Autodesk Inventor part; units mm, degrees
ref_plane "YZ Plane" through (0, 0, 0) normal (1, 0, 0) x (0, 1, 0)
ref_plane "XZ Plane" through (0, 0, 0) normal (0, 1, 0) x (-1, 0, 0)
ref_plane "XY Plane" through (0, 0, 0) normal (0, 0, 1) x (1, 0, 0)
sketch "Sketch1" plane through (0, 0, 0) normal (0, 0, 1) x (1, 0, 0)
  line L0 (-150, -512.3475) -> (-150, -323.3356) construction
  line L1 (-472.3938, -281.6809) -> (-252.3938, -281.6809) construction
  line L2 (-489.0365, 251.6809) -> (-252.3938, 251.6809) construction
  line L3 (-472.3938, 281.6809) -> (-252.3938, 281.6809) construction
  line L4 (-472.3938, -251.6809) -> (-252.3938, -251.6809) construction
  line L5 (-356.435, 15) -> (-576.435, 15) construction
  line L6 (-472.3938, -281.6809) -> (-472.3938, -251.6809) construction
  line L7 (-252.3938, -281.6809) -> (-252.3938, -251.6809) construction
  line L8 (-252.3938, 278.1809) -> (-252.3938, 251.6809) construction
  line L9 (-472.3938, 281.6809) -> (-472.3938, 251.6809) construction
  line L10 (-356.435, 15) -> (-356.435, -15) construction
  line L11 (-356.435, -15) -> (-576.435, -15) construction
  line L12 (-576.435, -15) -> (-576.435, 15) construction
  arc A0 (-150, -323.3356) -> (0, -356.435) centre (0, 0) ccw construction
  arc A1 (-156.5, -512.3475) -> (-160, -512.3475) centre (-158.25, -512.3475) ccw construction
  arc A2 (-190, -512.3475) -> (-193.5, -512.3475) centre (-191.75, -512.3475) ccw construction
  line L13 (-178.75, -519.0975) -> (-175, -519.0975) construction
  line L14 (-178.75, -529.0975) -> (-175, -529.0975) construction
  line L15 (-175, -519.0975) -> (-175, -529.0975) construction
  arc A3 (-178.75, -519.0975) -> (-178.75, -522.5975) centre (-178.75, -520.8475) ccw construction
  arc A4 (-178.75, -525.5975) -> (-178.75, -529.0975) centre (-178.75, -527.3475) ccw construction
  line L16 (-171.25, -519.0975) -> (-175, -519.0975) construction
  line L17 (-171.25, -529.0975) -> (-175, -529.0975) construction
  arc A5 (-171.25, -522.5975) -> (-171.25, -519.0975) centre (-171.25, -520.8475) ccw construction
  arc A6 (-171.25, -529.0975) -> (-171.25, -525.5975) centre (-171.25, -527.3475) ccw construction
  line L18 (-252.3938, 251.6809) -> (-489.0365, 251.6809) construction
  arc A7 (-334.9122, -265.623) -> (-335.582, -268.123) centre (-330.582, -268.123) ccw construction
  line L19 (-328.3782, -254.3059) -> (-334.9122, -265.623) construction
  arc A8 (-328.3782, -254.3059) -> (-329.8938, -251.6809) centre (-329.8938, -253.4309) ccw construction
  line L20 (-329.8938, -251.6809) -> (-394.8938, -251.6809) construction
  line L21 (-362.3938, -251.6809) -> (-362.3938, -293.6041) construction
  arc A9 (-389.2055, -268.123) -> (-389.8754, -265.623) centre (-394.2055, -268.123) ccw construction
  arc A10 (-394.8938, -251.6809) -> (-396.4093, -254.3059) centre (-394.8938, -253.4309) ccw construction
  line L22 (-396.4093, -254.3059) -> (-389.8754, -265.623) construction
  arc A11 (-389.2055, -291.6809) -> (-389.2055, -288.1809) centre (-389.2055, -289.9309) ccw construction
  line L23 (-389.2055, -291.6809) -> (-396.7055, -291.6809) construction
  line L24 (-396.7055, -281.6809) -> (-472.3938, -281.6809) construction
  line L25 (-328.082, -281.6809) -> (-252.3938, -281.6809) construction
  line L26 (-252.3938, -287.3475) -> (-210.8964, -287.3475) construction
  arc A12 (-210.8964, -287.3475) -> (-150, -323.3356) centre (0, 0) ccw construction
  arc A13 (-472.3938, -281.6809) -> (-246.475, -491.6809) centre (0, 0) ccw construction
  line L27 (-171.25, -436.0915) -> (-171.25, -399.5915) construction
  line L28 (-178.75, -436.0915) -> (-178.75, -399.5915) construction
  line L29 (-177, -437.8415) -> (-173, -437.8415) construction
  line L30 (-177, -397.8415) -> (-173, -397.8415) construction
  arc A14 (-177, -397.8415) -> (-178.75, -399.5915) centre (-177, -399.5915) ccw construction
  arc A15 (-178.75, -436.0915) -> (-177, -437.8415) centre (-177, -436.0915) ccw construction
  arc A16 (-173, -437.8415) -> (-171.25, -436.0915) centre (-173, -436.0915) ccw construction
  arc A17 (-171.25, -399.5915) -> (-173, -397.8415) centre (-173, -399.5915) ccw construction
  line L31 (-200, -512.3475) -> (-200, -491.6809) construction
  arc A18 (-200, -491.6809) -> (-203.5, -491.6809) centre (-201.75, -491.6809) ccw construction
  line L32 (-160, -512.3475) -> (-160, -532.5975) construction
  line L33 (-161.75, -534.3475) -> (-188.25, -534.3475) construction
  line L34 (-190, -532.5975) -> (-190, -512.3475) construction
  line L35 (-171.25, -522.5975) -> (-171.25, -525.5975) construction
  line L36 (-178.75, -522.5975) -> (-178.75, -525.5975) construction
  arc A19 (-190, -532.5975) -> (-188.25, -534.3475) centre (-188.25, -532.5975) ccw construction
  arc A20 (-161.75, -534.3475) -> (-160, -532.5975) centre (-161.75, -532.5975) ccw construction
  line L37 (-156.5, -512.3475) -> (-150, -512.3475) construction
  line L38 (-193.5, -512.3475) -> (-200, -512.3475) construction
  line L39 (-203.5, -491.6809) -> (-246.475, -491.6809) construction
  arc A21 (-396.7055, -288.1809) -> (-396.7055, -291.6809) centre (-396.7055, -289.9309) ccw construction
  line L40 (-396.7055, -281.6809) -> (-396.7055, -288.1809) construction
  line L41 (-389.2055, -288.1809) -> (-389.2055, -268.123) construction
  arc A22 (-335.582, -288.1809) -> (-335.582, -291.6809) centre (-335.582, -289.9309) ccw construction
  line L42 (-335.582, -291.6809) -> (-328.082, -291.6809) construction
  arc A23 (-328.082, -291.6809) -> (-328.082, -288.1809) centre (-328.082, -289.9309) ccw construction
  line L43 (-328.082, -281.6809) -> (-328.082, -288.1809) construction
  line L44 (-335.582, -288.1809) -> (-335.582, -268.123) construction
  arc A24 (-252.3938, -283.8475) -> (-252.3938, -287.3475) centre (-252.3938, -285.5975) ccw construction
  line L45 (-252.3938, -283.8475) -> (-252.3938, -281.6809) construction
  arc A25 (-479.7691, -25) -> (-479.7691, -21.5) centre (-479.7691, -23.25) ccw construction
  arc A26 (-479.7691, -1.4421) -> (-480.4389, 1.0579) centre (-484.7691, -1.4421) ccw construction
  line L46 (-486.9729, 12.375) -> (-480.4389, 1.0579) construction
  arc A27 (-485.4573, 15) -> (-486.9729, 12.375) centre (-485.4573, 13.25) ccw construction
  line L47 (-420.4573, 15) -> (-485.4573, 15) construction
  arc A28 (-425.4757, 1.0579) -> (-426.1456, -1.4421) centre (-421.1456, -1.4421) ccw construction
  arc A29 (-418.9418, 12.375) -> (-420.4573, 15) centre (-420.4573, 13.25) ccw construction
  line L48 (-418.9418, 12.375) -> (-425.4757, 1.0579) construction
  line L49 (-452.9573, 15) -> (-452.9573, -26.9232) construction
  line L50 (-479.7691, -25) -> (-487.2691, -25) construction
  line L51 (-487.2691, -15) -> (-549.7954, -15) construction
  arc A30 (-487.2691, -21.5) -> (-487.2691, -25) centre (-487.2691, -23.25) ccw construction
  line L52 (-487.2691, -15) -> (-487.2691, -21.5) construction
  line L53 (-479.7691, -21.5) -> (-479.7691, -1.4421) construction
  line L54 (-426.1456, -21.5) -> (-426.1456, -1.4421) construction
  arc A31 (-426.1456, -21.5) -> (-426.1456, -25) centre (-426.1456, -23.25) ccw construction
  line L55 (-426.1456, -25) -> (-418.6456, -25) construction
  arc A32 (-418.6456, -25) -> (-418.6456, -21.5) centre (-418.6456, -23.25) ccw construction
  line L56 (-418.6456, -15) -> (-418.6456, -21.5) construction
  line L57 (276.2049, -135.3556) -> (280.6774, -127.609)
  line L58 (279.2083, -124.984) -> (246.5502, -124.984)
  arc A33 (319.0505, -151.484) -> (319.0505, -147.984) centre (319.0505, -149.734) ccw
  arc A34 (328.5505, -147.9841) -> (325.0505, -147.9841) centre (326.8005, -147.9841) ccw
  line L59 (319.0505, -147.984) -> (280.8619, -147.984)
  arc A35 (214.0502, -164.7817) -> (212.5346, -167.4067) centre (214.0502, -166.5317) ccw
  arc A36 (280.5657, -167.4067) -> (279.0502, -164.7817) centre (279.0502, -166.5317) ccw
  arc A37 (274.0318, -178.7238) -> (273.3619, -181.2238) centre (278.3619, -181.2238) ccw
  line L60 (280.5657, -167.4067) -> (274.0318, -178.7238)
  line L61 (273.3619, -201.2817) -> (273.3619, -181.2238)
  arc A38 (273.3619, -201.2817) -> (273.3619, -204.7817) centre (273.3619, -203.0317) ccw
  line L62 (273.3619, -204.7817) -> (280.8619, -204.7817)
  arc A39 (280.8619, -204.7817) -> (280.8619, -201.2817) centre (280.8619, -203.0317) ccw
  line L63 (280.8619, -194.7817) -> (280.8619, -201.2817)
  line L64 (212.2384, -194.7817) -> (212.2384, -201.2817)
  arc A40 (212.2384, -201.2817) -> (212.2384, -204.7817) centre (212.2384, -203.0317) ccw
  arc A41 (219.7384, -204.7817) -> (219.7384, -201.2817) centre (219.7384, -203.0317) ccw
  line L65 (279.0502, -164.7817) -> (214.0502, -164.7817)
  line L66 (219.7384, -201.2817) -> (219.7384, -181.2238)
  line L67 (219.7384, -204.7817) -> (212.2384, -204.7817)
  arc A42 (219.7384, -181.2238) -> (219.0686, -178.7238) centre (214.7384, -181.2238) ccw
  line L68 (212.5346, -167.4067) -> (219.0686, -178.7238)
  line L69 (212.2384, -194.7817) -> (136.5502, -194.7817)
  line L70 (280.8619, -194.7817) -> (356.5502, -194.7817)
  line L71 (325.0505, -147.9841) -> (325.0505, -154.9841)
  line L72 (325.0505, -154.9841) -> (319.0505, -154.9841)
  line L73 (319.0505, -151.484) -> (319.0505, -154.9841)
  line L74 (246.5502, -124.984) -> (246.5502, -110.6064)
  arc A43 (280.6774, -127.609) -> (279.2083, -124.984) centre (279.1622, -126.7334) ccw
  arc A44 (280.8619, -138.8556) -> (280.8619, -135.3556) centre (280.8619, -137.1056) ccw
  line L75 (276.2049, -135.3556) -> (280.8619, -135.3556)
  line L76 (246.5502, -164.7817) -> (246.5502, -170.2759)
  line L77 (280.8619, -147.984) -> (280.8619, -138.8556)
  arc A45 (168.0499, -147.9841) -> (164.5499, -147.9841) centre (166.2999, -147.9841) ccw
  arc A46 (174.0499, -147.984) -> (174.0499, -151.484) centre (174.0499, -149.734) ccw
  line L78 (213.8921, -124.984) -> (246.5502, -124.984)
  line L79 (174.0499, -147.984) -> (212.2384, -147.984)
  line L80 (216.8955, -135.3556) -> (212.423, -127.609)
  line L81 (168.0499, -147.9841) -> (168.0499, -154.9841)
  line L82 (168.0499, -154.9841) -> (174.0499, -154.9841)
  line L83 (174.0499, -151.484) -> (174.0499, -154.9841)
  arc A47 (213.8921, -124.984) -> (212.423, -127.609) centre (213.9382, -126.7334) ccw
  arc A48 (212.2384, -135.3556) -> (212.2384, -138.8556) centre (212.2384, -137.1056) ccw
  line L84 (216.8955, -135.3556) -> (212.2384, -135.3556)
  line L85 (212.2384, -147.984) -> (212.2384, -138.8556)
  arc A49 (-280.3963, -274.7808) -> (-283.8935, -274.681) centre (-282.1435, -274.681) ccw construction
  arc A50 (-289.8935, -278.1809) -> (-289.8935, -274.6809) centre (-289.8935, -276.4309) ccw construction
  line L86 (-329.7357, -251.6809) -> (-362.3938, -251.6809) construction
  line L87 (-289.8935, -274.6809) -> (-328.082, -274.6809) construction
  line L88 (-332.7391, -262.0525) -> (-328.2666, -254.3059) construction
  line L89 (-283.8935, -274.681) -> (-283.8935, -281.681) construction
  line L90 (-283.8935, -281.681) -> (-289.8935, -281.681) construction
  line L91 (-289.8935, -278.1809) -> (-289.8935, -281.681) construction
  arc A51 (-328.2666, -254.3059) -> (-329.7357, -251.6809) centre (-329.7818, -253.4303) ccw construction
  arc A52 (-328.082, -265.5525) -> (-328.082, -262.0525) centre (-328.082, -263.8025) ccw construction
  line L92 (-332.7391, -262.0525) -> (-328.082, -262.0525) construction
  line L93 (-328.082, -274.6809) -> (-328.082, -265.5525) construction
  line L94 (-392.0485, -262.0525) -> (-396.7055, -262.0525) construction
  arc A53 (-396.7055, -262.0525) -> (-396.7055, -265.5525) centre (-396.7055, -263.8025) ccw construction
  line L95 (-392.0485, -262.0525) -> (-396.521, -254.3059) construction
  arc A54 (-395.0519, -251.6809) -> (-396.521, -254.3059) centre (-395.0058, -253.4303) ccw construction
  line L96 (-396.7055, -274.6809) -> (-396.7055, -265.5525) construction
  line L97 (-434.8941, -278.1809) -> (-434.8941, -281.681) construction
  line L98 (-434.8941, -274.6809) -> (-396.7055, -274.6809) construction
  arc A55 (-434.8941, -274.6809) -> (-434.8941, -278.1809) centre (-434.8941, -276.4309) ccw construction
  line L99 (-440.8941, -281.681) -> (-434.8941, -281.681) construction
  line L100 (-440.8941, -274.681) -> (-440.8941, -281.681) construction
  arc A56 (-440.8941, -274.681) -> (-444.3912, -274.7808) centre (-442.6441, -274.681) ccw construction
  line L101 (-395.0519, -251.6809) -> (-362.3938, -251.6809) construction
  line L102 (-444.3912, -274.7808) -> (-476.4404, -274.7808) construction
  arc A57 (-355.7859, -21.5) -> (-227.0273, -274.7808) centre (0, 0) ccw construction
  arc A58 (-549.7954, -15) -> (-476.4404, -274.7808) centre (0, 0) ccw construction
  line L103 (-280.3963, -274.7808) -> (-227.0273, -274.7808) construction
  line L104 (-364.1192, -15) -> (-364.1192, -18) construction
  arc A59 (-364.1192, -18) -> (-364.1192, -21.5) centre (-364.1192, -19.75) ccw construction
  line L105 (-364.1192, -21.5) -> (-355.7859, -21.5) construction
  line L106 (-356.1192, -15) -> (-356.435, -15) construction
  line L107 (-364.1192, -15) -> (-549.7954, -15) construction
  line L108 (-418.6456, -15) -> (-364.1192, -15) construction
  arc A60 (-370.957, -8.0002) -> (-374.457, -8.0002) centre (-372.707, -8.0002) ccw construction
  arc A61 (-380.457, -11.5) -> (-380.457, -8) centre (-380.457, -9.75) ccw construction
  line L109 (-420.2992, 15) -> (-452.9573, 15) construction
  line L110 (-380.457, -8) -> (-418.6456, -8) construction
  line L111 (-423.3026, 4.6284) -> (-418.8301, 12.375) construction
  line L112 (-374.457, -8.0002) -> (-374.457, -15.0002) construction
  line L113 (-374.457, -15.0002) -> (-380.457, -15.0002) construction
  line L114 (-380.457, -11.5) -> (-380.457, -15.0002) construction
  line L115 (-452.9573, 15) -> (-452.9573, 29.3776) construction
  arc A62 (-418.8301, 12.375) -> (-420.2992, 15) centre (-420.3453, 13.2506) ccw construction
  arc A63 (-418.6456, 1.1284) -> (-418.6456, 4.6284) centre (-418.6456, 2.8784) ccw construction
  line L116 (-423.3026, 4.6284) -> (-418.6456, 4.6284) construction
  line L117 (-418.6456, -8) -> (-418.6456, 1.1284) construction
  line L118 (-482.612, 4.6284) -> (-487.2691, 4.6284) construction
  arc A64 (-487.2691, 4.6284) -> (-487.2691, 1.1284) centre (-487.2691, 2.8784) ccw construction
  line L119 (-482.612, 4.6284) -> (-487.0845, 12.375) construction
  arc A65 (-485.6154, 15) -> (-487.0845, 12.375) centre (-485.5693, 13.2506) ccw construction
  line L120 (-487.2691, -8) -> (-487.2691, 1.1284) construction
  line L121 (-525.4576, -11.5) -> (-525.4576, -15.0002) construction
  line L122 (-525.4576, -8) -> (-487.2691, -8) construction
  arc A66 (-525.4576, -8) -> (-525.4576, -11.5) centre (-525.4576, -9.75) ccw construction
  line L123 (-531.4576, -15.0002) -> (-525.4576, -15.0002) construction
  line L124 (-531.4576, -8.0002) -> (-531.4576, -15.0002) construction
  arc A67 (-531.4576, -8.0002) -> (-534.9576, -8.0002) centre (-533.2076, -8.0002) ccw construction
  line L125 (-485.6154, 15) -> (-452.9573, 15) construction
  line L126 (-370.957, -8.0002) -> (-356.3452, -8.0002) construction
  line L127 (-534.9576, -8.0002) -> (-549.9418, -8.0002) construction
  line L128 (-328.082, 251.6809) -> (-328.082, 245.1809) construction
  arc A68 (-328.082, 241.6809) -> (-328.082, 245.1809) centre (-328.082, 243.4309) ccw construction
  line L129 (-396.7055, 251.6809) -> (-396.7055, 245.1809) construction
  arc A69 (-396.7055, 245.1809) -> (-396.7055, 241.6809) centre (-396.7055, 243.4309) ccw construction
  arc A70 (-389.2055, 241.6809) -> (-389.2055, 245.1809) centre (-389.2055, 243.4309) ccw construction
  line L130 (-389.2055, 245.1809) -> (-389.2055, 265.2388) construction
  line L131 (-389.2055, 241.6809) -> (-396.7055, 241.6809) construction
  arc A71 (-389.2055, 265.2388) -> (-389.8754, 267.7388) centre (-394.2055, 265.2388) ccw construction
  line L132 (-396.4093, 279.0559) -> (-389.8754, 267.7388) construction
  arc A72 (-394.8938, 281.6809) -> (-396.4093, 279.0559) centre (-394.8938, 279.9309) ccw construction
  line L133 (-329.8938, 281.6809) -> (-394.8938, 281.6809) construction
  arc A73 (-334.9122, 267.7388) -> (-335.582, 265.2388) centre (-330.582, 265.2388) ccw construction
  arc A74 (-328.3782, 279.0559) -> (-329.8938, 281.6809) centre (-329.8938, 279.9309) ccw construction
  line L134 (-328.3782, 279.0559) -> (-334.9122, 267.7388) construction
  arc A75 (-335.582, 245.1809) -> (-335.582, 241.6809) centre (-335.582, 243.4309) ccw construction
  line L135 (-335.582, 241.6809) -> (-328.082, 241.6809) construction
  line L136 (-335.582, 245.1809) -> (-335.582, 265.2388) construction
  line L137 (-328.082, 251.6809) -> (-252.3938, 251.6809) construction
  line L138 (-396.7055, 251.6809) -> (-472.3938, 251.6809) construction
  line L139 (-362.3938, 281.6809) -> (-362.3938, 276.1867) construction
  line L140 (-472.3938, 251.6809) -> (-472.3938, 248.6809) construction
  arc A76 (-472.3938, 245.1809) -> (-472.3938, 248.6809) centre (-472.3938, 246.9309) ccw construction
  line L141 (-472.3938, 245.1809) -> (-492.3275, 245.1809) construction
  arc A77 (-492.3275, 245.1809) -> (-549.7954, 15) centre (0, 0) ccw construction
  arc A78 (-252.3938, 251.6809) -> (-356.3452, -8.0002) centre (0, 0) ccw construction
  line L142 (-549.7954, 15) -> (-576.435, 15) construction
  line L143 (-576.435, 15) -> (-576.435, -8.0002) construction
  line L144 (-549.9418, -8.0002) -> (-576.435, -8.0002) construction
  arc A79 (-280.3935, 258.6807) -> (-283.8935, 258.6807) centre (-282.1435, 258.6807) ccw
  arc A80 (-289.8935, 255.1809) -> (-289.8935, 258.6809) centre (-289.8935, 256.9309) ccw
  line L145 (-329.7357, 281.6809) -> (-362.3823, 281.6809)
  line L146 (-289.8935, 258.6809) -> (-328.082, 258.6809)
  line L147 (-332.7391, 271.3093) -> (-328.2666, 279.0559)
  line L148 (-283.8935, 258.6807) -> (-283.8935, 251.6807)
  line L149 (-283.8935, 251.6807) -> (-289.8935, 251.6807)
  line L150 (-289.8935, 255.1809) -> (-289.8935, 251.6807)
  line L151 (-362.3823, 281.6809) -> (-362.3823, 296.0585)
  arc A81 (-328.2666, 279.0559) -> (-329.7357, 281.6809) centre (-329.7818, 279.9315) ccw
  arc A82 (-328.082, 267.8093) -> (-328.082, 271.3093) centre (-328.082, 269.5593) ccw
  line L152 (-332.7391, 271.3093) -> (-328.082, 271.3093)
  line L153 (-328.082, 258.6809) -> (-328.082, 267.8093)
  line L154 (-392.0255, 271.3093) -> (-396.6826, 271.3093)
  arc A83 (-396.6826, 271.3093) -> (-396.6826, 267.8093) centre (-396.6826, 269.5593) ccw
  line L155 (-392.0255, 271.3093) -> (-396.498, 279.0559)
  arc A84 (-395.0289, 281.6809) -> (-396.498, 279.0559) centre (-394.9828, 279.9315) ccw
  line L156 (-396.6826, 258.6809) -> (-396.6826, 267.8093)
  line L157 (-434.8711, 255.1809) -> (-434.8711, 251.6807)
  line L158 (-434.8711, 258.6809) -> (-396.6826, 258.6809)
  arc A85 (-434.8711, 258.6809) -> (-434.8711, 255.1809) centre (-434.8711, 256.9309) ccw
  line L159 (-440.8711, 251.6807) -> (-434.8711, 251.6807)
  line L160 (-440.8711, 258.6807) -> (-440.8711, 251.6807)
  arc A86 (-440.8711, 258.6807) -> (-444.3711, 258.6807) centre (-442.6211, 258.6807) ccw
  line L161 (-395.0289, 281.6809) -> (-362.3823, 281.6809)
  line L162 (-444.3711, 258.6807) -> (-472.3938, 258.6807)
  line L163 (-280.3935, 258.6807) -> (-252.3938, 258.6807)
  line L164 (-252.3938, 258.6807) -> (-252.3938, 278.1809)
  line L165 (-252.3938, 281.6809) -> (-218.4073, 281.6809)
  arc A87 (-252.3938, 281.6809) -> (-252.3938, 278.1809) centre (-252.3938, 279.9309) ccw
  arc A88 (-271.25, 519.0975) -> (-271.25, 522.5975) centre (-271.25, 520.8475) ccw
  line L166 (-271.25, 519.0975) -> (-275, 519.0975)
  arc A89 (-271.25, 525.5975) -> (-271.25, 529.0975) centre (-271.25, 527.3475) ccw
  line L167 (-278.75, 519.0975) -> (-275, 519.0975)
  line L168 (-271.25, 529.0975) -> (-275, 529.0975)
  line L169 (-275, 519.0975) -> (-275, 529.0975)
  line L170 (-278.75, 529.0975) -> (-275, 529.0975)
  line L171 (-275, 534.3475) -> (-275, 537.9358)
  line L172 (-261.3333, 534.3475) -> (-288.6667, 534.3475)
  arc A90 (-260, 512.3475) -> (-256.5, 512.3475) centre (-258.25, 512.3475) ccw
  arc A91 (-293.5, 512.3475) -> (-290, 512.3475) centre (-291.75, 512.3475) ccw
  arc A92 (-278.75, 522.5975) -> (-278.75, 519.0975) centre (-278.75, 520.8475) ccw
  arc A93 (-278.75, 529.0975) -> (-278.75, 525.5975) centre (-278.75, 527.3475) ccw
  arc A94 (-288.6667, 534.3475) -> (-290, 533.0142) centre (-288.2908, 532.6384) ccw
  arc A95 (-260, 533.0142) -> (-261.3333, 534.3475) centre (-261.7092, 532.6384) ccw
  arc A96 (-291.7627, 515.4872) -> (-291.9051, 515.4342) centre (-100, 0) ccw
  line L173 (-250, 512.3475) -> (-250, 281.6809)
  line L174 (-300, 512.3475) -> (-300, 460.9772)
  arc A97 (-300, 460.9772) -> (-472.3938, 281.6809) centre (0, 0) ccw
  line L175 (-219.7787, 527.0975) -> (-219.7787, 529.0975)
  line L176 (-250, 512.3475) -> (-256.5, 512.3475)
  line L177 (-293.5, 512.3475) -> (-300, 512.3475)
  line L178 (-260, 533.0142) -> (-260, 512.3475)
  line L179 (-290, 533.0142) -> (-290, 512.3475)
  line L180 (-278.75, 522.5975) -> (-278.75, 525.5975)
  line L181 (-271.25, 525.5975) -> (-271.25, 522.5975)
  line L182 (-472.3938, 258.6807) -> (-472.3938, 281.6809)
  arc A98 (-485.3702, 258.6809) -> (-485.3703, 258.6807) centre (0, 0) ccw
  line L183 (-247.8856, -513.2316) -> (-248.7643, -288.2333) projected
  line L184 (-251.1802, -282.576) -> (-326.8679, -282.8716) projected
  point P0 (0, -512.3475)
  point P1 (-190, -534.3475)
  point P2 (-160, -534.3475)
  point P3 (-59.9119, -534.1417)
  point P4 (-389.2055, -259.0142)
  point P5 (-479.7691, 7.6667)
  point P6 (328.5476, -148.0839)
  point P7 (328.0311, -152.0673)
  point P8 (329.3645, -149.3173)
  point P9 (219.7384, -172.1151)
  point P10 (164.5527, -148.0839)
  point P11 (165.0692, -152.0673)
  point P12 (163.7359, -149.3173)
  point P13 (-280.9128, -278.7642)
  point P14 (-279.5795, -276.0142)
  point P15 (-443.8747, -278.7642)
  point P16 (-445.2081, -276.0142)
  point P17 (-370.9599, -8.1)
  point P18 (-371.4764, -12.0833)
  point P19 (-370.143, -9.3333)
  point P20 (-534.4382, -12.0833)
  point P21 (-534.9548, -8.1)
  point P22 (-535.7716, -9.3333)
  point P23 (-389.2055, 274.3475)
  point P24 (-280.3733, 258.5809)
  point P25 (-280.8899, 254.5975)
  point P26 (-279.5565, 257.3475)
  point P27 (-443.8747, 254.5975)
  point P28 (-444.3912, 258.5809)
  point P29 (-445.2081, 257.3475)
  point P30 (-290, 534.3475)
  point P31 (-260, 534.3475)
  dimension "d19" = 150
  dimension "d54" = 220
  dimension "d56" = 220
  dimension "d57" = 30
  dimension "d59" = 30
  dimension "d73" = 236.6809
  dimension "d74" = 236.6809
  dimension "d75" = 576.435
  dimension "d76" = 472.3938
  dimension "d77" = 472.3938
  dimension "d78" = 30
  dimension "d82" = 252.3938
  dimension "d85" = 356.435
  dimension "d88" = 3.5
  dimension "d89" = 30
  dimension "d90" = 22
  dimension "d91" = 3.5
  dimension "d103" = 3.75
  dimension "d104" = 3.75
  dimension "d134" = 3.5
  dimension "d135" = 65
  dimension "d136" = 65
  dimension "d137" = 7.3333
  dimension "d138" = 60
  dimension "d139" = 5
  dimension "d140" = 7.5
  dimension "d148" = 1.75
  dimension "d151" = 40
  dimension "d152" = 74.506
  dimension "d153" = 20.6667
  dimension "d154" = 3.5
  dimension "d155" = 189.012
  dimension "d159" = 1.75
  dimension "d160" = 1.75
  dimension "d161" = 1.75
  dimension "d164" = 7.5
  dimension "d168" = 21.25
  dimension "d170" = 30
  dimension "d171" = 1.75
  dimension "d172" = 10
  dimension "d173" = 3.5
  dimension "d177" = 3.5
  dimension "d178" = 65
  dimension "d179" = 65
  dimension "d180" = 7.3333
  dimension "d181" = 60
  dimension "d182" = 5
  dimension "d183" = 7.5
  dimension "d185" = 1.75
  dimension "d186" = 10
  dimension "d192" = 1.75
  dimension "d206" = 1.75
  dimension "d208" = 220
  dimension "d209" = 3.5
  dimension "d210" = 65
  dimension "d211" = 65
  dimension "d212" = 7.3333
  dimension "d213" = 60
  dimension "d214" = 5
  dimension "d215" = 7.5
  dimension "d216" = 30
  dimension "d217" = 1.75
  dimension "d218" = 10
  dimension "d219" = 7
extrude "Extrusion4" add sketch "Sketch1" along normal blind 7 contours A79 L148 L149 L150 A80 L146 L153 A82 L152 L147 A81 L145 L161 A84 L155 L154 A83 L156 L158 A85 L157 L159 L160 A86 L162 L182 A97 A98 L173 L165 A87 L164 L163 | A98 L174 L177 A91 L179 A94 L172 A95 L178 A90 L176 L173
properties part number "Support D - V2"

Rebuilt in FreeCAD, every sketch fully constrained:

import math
import FreeCAD as App
import Part
import Sketcher

V = App.Vector
Q = App.Units.Quantity

doc = App.newDocument("Part")
body = doc.addObject("PartDesign::Body", "Body")

sketch1 = doc.addObject("Sketcher::SketchObject", "Sketch")
body.addObject(sketch1)
sketch1.AttachmentSupport = (doc.XY_Plane, [""])
sketch1.MapMode = "FlatFace"
sketch1.addGeometry(Part.ArcOfCircle(Part.Circle(V(-282.1, 258.7, 0), V(0, 0, 1), 1.8), math.radians(0), math.radians(180)), False)
sketch1.addGeometry(Part.LineSegment(V(-280.4, 258.7, 0), V(-252.4, 258.7, 0)), False)
sketch1.addGeometry(Part.LineSegment(V(-252.4, 258.7, 0), V(-252.4, 278.2, 0)), False)
sketch1.addGeometry(Part.ArcOfCircle(Part.Circle(V(-252.4, 279.9, 0), V(0, 0, 1), 1.8), math.radians(90), math.radians(270)), False)
sketch1.addGeometry(Part.LineSegment(V(-252.4, 281.7, 0), V(-250, 281.7, 0)), False)
sketch1.addGeometry(Part.LineSegment(V(-250, 281.7, 0), V(-250, 512.3, 0)), False)
sketch1.addGeometry(Part.LineSegment(V(-250, 512.3, 0), V(-256.5, 512.3, 0)), False)
sketch1.addGeometry(Part.ArcOfCircle(Part.Circle(V(-258.2, 512.3, 0), V(0, 0, 1), 1.8), math.radians(180), math.radians(360)), False)
sketch1.addGeometry(Part.LineSegment(V(-260, 512.3, 0), V(-260, 533, 0)), False)
sketch1.addGeometry(Part.ArcOfCircle(Part.Circle(V(-261.7, 532.6, 0), V(0, 0, 1), 1.8), math.radians(12), math.radians(78)), False)
sketch1.addGeometry(Part.LineSegment(V(-261.3, 534.3, 0), V(-288.7, 534.3, 0)), False)
sketch1.addGeometry(Part.ArcOfCircle(Part.Circle(V(-288.3, 532.6, 0), V(0, 0, 1), 1.7), math.radians(102), math.radians(168)), False)
sketch1.addGeometry(Part.LineSegment(V(-290, 533, 0), V(-290, 512.3, 0)), False)
sketch1.addGeometry(Part.ArcOfCircle(Part.Circle(V(-291.8, 512.3, 0), V(0, 0, 1), 1.8), math.radians(180), math.radians(360)), False)
sketch1.addGeometry(Part.LineSegment(V(-293.5, 512.3, 0), V(-300, 512.3, 0)), False)
sketch1.addGeometry(Part.LineSegment(V(-300, 512.3, 0), V(-300, 461, 0)), False)
sketch1.addGeometry(Part.ArcOfCircle(Part.Circle(V(0, 0, 0), V(0, 0, 1), 550), math.radians(123), math.radians(149)), False)
sketch1.addGeometry(Part.LineSegment(V(-472.4, 281.7, 0), V(-472.4, 258.7, 0)), False)
sketch1.addGeometry(Part.LineSegment(V(-472.4, 258.7, 0), V(-444.4, 258.7, 0)), False)
sketch1.addGeometry(Part.ArcOfCircle(Part.Circle(V(-442.6, 258.7, 0), V(0, 0, 1), 1.8), math.radians(0), math.radians(180)), False)
sketch1.addGeometry(Part.LineSegment(V(-440.9, 258.7, 0), V(-440.9, 251.7, 0)), False)
sketch1.addGeometry(Part.LineSegment(V(-440.9, 251.7, 0), V(-434.9, 251.7, 0)), False)
sketch1.addGeometry(Part.LineSegment(V(-434.9, 251.7, 0), V(-434.9, 255.2, 0)), False)
sketch1.addGeometry(Part.ArcOfCircle(Part.Circle(V(-434.9, 256.9, 0), V(0, 0, 1), 1.8), math.radians(90), math.radians(270)), False)
sketch1.addGeometry(Part.LineSegment(V(-434.9, 258.7, 0), V(-396.7, 258.7, 0)), False)
sketch1.addGeometry(Part.LineSegment(V(-396.7, 258.7, 0), V(-396.7, 267.8, 0)), False)
sketch1.addGeometry(Part.ArcOfCircle(Part.Circle(V(-396.7, 269.6, 0), V(0, 0, 1), 1.8), math.radians(90), math.radians(270)), False)
sketch1.addGeometry(Part.LineSegment(V(-396.7, 271.3, 0), V(-392, 271.3, 0)), False)
sketch1.addGeometry(Part.LineSegment(V(-392, 271.3, 0), V(-396.5, 279.1, 0)), False)
sketch1.addGeometry(Part.ArcOfCircle(Part.Circle(V(-395, 279.9, 0), V(0, 0, 1), 1.8), math.radians(92), math.radians(210)), False)
sketch1.addGeometry(Part.LineSegment(V(-395, 281.7, 0), V(-329.7, 281.7, 0)), False)
sketch1.addGeometry(Part.ArcOfCircle(Part.Circle(V(-329.8, 279.9, 0), V(0, 0, 1), 1.8), math.radians(-30), math.radians(88)), False)
sketch1.addGeometry(Part.LineSegment(V(-328.3, 279.1, 0), V(-332.7, 271.3, 0)), False)
sketch1.addGeometry(Part.LineSegment(V(-332.7, 271.3, 0), V(-328.1, 271.3, 0)), False)
sketch1.addGeometry(Part.ArcOfCircle(Part.Circle(V(-328.1, 269.6, 0), V(0, 0, 1), 1.8), math.radians(-90), math.radians(90)), False)
sketch1.addGeometry(Part.LineSegment(V(-328.1, 267.8, 0), V(-328.1, 258.7, 0)), False)
sketch1.addGeometry(Part.LineSegment(V(-328.1, 258.7, 0), V(-289.9, 258.7, 0)), False)
sketch1.addGeometry(Part.ArcOfCircle(Part.Circle(V(-289.9, 256.9, 0), V(0, 0, 1), 1.8), math.radians(-90), math.radians(90)), False)
sketch1.addGeometry(Part.LineSegment(V(-289.9, 255.2, 0), V(-289.9, 251.7, 0)), False)
sketch1.addGeometry(Part.LineSegment(V(-289.9, 251.7, 0), V(-283.9, 251.7, 0)), False)
sketch1.addGeometry(Part.LineSegment(V(-283.9, 251.7, 0), V(-283.9, 258.7, 0)), False)
sketch1.addGeometry(Part.LineSegment(V(-271.2, 519.1, 0), V(-278.8, 519.1, 0)), False)
sketch1.addGeometry(Part.ArcOfCircle(Part.Circle(V(-278.8, 520.8, 0), V(0, 0, 1), 1.8), math.radians(90), math.radians(270)), False)
sketch1.addGeometry(Part.LineSegment(V(-278.8, 522.6, 0), V(-278.8, 525.6, 0)), False)
sketch1.addGeometry(Part.ArcOfCircle(Part.Circle(V(-278.8, 527.3, 0), V(0, 0, 1), 1.8), math.radians(90), math.radians(270)), False)
sketch1.addGeometry(Part.LineSegment(V(-278.8, 529.1, 0), V(-271.2, 529.1, 0)), False)
sketch1.addGeometry(Part.ArcOfCircle(Part.Circle(V(-271.2, 527.3, 0), V(0, 0, 1), 1.8), math.radians(-90), math.radians(90)), False)
sketch1.addGeometry(Part.LineSegment(V(-271.2, 525.6, 0), V(-271.2, 522.6, 0)), False)
sketch1.addGeometry(Part.ArcOfCircle(Part.Circle(V(-271.2, 520.8, 0), V(0, 0, 1), 1.8), math.radians(-90), math.radians(90)), False)
sketch1.addConstraint(Sketcher.Constraint("Coincident", 0, 1, 1, 1))
sketch1.addConstraint(Sketcher.Constraint("Coincident", 1, 2, 2, 1))
sketch1.addConstraint(Sketcher.Constraint("Coincident", 2, 2, 3, 2))
sketch1.addConstraint(Sketcher.Constraint("Tangent", 3, 1, 4, 1))
sketch1.addConstraint(Sketcher.Constraint("Coincident", 4, 2, 5, 1))
sketch1.addConstraint(Sketcher.Constraint("Coincident", 5, 2, 6, 1))
sketch1.addConstraint(Sketcher.Constraint("Coincident", 6, 2, 7, 2))
sketch1.addConstraint(Sketcher.Constraint("Tangent", 7, 1, 8, 1))
sketch1.addConstraint(Sketcher.Constraint("Coincident", 8, 2, 9, 1))
sketch1.addConstraint(Sketcher.Constraint("Coincident", 9, 2, 10, 1))
sketch1.addConstraint(Sketcher.Constraint("Coincident", 10, 2, 11, 1))
sketch1.addConstraint(Sketcher.Constraint("Coincident", 11, 2, 12, 1))
sketch1.addConstraint(Sketcher.Constraint("Tangent", 12, 2, 13, 2))
sketch1.addConstraint(Sketcher.Constraint("Coincident", 13, 1, 14, 1))
sketch1.addConstraint(Sketcher.Constraint("Coincident", 14, 2, 15, 1))
sketch1.addConstraint(Sketcher.Constraint("Coincident", 15, 2, 16, 1))
sketch1.addConstraint(Sketcher.Constraint("Coincident", 16, 2, 17, 1))
sketch1.addConstraint(Sketcher.Constraint("Coincident", 17, 2, 18, 1))
sketch1.addConstraint(Sketcher.Constraint("Coincident", 18, 2, 19, 2))
sketch1.addConstraint(Sketcher.Constraint("Tangent", 19, 1, 20, 1))
sketch1.addConstraint(Sketcher.Constraint("Coincident", 20, 2, 21, 1))
sketch1.addConstraint(Sketcher.Constraint("Coincident", 21, 2, 22, 1))
sketch1.addConstraint(Sketcher.Constraint("Coincident", 22, 2, 23, 2))
sketch1.addConstraint(Sketcher.Constraint("Tangent", 23, 1, 24, 1))
sketch1.addConstraint(Sketcher.Constraint("Coincident", 24, 2, 25, 1))
sketch1.addConstraint(Sketcher.Constraint("Coincident", 25, 2, 26, 2))
sketch1.addConstraint(Sketcher.Constraint("Tangent", 26, 1, 27, 1))
sketch1.addConstraint(Sketcher.Constraint("Coincident", 27, 2, 28, 1))
sketch1.addConstraint(Sketcher.Constraint("Tangent", 28, 2, 29, 2))
sketch1.addConstraint(Sketcher.Constraint("Coincident", 29, 1, 30, 1))
sketch1.addConstraint(Sketcher.Constraint("Coincident", 30, 2, 31, 2))
sketch1.addConstraint(Sketcher.Constraint("Tangent", 31, 1, 32, 1))
sketch1.addConstraint(Sketcher.Constraint("Coincident", 32, 2, 33, 1))
sketch1.addConstraint(Sketcher.Constraint("Tangent", 33, 2, 34, 2))
sketch1.addConstraint(Sketcher.Constraint("Coincident", 34, 1, 35, 1))
sketch1.addConstraint(Sketcher.Constraint("Coincident", 35, 2, 36, 1))
sketch1.addConstraint(Sketcher.Constraint("Tangent", 36, 2, 37, 2))
sketch1.addConstraint(Sketcher.Constraint("Coincident", 37, 1, 38, 1))
sketch1.addConstraint(Sketcher.Constraint("Coincident", 38, 2, 39, 1))
sketch1.addConstraint(Sketcher.Constraint("Coincident", 39, 2, 40, 1))
sketch1.addConstraint(Sketcher.Constraint("Tangent", 40, 2, 0, 2))
sketch1.addConstraint(Sketcher.Constraint("Tangent", 41, 2, 42, 2))
sketch1.addConstraint(Sketcher.Constraint("Coincident", 42, 1, 43, 1))
sketch1.addConstraint(Sketcher.Constraint("Coincident", 43, 2, 44, 2))
sketch1.addConstraint(Sketcher.Constraint("Tangent", 44, 1, 45, 1))
sketch1.addConstraint(Sketcher.Constraint("Tangent", 45, 2, 46, 2))
sketch1.addConstraint(Sketcher.Constraint("Coincident", 46, 1, 47, 1))
sketch1.addConstraint(Sketcher.Constraint("Coincident", 47, 2, 48, 2))
sketch1.addConstraint(Sketcher.Constraint("Tangent", 48, 1, 41, 1))
sketch1.addConstraint(Sketcher.Constraint("Horizontal", 1))
sketch1.addConstraint(Sketcher.Constraint("Vertical", 2))
sketch1.addConstraint(Sketcher.Constraint("Horizontal", 4))
sketch1.addConstraint(Sketcher.Constraint("Vertical", 5))
sketch1.addConstraint(Sketcher.Constraint("Horizontal", 6))
sketch1.addConstraint(Sketcher.Constraint("Vertical", 8))
sketch1.addConstraint(Sketcher.Constraint("Horizontal", 10))
sketch1.addConstraint(Sketcher.Constraint("Vertical", 12))
sketch1.addConstraint(Sketcher.Constraint("Horizontal", 14))
sketch1.addConstraint(Sketcher.Constraint("Vertical", 15))
sketch1.addConstraint(Sketcher.Constraint("Vertical", 17))
sketch1.addConstraint(Sketcher.Constraint("Horizontal", 18))
sketch1.addConstraint(Sketcher.Constraint("Vertical", 20))
sketch1.addConstraint(Sketcher.Constraint("Horizontal", 21))
sketch1.addConstraint(Sketcher.Constraint("Vertical", 22))
sketch1.addConstraint(Sketcher.Constraint("Horizontal", 24))
sketch1.addConstraint(Sketcher.Constraint("Vertical", 25))
sketch1.addConstraint(Sketcher.Constraint("Horizontal", 27))
sketch1.addConstraint(Sketcher.Constraint("Horizontal", 30))
sketch1.addConstraint(Sketcher.Constraint("Horizontal", 33))
sketch1.addConstraint(Sketcher.Constraint("Vertical", 35))
sketch1.addConstraint(Sketcher.Constraint("Horizontal", 36))
sketch1.addConstraint(Sketcher.Constraint("Vertical", 38))
sketch1.addConstraint(Sketcher.Constraint("Horizontal", 39))
sketch1.addConstraint(Sketcher.Constraint("Vertical", 40))
sketch1.addConstraint(Sketcher.Constraint("Horizontal", 41))
sketch1.addConstraint(Sketcher.Constraint("Vertical", 43))
sketch1.addConstraint(Sketcher.Constraint("Horizontal", 45))
sketch1.addConstraint(Sketcher.Constraint("Vertical", 47))
sketch1.addConstraint(Sketcher.Constraint("Coincident", 16, 3, -1, 1))
sketch1.addConstraint(Sketcher.Constraint("Equal", 0, 3))
sketch1.addConstraint(Sketcher.Constraint("Equal", 3, 7))
sketch1.addConstraint(Sketcher.Constraint("Equal", 7, 9))
sketch1.addConstraint(Sketcher.Constraint("Equal", 9, 11))
sketch1.addConstraint(Sketcher.Constraint("Equal", 11, 13))
sketch1.addConstraint(Sketcher.Constraint("Equal", 13, 19))
sketch1.addConstraint(Sketcher.Constraint("Equal", 19, 23))
sketch1.addConstraint(Sketcher.Constraint("Equal", 23, 26))
sketch1.addConstraint(Sketcher.Constraint("Equal", 26, 29))
sketch1.addConstraint(Sketcher.Constraint("Equal", 29, 31))
sketch1.addConstraint(Sketcher.Constraint("Equal", 31, 34))
sketch1.addConstraint(Sketcher.Constraint("Equal", 34, 37))
sketch1.addConstraint(Sketcher.Constraint("Equal", 37, 42))
sketch1.addConstraint(Sketcher.Constraint("Equal", 42, 44))
sketch1.addConstraint(Sketcher.Constraint("Equal", 44, 46))
sketch1.addConstraint(Sketcher.Constraint("Equal", 46, 48))
sketch1.addConstraint(Sketcher.Constraint("Horizontal", 9, 3, 11, 3))
sketch1.addConstraint(Sketcher.Constraint("Horizontal", 7, 3, 13, 3))
sketch1.addConstraint(Sketcher.Constraint("Horizontal", 0, 3, 19, 3))
sketch1.addConstraint(Sketcher.Constraint("Horizontal", 29, 3, 31, 3))
sketch1.addConstraint(Sketcher.Constraint("Horizontal", 26, 3, 34, 3))
sketch1.addConstraint(Sketcher.Constraint("Horizontal", 23, 3, 37, 3))
sketch1.addConstraint(Sketcher.Constraint("Horizontal", 19, 3, 0, 1))
sketch1.addConstraint(Sketcher.Constraint("Horizontal", 13, 3, 5, 2))
sketch1.addConstraint(Sketcher.Constraint("Horizontal", 8, 2, 11, 2))
sketch1.addConstraint(Sketcher.Constraint("Horizontal", 12, 2, 13, 1))
sketch1.addConstraint(Sketcher.Constraint("Horizontal", 4, 2, 16, 2))
sketch1.addConstraint(Sketcher.Constraint("Horizontal", 1, 2, 17, 2))
sketch1.addConstraint(Sketcher.Constraint("Horizontal", 28, 2, 31, 1))
sketch1.addConstraint(Sketcher.Constraint("Horizontal", 21, 2, 38, 2))
sketch1.addConstraint(Sketcher.Constraint("Vertical", 42, 3, 44, 3))
sketch1.addConstraint(Sketcher.Constraint("Vertical", 46, 3, 48, 3))
sketch1.addConstraint(Sketcher.Constraint("Vertical", 3, 3, 1, 2))
sketch1.addConstraint(Sketcher.Constraint("Vertical", 23, 3, 21, 2))
sketch1.addConstraint(Sketcher.Constraint("Vertical", 26, 3, 24, 2))
sketch1.addConstraint(Sketcher.Constraint("Vertical", 33, 2, 34, 1))
sketch1.addConstraint(Sketcher.Constraint("Vertical", 36, 2, 37, 1))
sketch1.addConstraint(Sketcher.Constraint("Vertical", 41, 2, 42, 1))
sketch1.addConstraint(Sketcher.Constraint("Vertical", 45, 2, 46, 1))
sketch1.addConstraint(Sketcher.Constraint("Equal", 6, 14))
sketch1.addConstraint(Sketcher.Constraint("Equal", 27, 33))
sketch1.addConstraint(Sketcher.Constraint("Equal", 24, 36))
sketch1.addConstraint(Sketcher.Constraint("Equal", 21, 39))
sketch1.addConstraint(Sketcher.Constraint("DistanceY", 20, 2, 20, 1, Q("7 mm")))
sketch1.addConstraint(Sketcher.Constraint("Radius", 0, Q("1.75 mm")))
sketch1.addConstraint(Sketcher.Constraint("DistanceX", 41, 2, 41, 1, Q("7.5 mm")))
sketch1.addConstraint(Sketcher.Constraint("Radius", 16, Q("550 mm")))
sketch1.addConstraint(Sketcher.Constraint("DistanceX", 21, 1, 21, 2, Q("6 mm")))
sketch1.addConstraint(Sketcher.Constraint("DistanceY", 43, 1, 43, 2, Q("3 mm")))
sketch1.addConstraint(Sketcher.Constraint("Angle", 28, Q("120 deg")))
sketch1.addConstraint(Sketcher.Constraint("DistanceX", 6, 2, 6, 1, Q("6.5 mm")))
sketch1.addConstraint(Sketcher.Constraint("DistanceY", 8, 1, 8, 2, Q("20.6667 mm")))
sketch1.addConstraint(Sketcher.Constraint("DistanceY", 22, 1, 22, 2, Q("3.5002 mm")))
sketch1.addConstraint(Sketcher.Constraint("DistanceX", 4, 2, -1, 1, Q("250 mm")))
sketch1.addConstraint(Sketcher.Constraint("DistanceX", 11, 2, -1, 1, Q("290 mm")))
sketch1.addConstraint(Sketcher.Constraint("DistanceX", 3, 3, -1, 1, Q("252.3938 mm")))
sketch1.addConstraint(Sketcher.Constraint("DistanceX", 17, 2, -1, 1, Q("472.3938 mm")))
sketch1.addConstraint(Sketcher.Constraint("DistanceX", 27, 1, 27, 2, Q("4.657 mm")))
sketch1.addConstraint(Sketcher.Constraint("DistanceX", 42, 3, -1, 1, Q("278.75 mm")))
sketch1.addConstraint(Sketcher.Constraint("Distance", 28, Q("8.945 mm")))
sketch1.addConstraint(Sketcher.Constraint("DistanceX", 1, 1, 1, 2, Q("27.9997 mm")))
sketch1.addConstraint(Sketcher.Constraint("DistanceX", 10, 2, 10, 1, Q("27.3334 mm")))
sketch1.addConstraint(Sketcher.Constraint("DistanceX", 18, 1, 18, 2, Q("28.0227 mm")))
sketch1.addConstraint(Sketcher.Constraint("DistanceX", 24, 1, 24, 2, Q("38.1885 mm")))
sketch1.addConstraint(Sketcher.Constraint("DistanceX", 30, 1, 30, 2, Q("65.2932 mm")))
sketch1.addConstraint(Sketcher.Constraint("DistanceY", 2, 1, 2, 2, Q("19.5002 mm")))
sketch1.addConstraint(Sketcher.Constraint("DistanceY", 5, 1, 5, 2, Q("230.6666 mm")))
sketch1.addConstraint(Sketcher.Constraint("DistanceY", 25, 1, 25, 2, Q("9.1284 mm")))
sketch1.addConstraint(Sketcher.Constraint("DistanceX", 9, 3, -1, 1, Q("261.7092 mm")))
sketch1.addConstraint(Sketcher.Constraint("DistanceY", -1, 1, 42, 3, Q("520.8475 mm")))
pad1 = doc.addObject("PartDesign::Pad", "Pad")
body.addObject(pad1)
pad1.Profile = sketch1
pad1.Length = 7

doc.recompute()
